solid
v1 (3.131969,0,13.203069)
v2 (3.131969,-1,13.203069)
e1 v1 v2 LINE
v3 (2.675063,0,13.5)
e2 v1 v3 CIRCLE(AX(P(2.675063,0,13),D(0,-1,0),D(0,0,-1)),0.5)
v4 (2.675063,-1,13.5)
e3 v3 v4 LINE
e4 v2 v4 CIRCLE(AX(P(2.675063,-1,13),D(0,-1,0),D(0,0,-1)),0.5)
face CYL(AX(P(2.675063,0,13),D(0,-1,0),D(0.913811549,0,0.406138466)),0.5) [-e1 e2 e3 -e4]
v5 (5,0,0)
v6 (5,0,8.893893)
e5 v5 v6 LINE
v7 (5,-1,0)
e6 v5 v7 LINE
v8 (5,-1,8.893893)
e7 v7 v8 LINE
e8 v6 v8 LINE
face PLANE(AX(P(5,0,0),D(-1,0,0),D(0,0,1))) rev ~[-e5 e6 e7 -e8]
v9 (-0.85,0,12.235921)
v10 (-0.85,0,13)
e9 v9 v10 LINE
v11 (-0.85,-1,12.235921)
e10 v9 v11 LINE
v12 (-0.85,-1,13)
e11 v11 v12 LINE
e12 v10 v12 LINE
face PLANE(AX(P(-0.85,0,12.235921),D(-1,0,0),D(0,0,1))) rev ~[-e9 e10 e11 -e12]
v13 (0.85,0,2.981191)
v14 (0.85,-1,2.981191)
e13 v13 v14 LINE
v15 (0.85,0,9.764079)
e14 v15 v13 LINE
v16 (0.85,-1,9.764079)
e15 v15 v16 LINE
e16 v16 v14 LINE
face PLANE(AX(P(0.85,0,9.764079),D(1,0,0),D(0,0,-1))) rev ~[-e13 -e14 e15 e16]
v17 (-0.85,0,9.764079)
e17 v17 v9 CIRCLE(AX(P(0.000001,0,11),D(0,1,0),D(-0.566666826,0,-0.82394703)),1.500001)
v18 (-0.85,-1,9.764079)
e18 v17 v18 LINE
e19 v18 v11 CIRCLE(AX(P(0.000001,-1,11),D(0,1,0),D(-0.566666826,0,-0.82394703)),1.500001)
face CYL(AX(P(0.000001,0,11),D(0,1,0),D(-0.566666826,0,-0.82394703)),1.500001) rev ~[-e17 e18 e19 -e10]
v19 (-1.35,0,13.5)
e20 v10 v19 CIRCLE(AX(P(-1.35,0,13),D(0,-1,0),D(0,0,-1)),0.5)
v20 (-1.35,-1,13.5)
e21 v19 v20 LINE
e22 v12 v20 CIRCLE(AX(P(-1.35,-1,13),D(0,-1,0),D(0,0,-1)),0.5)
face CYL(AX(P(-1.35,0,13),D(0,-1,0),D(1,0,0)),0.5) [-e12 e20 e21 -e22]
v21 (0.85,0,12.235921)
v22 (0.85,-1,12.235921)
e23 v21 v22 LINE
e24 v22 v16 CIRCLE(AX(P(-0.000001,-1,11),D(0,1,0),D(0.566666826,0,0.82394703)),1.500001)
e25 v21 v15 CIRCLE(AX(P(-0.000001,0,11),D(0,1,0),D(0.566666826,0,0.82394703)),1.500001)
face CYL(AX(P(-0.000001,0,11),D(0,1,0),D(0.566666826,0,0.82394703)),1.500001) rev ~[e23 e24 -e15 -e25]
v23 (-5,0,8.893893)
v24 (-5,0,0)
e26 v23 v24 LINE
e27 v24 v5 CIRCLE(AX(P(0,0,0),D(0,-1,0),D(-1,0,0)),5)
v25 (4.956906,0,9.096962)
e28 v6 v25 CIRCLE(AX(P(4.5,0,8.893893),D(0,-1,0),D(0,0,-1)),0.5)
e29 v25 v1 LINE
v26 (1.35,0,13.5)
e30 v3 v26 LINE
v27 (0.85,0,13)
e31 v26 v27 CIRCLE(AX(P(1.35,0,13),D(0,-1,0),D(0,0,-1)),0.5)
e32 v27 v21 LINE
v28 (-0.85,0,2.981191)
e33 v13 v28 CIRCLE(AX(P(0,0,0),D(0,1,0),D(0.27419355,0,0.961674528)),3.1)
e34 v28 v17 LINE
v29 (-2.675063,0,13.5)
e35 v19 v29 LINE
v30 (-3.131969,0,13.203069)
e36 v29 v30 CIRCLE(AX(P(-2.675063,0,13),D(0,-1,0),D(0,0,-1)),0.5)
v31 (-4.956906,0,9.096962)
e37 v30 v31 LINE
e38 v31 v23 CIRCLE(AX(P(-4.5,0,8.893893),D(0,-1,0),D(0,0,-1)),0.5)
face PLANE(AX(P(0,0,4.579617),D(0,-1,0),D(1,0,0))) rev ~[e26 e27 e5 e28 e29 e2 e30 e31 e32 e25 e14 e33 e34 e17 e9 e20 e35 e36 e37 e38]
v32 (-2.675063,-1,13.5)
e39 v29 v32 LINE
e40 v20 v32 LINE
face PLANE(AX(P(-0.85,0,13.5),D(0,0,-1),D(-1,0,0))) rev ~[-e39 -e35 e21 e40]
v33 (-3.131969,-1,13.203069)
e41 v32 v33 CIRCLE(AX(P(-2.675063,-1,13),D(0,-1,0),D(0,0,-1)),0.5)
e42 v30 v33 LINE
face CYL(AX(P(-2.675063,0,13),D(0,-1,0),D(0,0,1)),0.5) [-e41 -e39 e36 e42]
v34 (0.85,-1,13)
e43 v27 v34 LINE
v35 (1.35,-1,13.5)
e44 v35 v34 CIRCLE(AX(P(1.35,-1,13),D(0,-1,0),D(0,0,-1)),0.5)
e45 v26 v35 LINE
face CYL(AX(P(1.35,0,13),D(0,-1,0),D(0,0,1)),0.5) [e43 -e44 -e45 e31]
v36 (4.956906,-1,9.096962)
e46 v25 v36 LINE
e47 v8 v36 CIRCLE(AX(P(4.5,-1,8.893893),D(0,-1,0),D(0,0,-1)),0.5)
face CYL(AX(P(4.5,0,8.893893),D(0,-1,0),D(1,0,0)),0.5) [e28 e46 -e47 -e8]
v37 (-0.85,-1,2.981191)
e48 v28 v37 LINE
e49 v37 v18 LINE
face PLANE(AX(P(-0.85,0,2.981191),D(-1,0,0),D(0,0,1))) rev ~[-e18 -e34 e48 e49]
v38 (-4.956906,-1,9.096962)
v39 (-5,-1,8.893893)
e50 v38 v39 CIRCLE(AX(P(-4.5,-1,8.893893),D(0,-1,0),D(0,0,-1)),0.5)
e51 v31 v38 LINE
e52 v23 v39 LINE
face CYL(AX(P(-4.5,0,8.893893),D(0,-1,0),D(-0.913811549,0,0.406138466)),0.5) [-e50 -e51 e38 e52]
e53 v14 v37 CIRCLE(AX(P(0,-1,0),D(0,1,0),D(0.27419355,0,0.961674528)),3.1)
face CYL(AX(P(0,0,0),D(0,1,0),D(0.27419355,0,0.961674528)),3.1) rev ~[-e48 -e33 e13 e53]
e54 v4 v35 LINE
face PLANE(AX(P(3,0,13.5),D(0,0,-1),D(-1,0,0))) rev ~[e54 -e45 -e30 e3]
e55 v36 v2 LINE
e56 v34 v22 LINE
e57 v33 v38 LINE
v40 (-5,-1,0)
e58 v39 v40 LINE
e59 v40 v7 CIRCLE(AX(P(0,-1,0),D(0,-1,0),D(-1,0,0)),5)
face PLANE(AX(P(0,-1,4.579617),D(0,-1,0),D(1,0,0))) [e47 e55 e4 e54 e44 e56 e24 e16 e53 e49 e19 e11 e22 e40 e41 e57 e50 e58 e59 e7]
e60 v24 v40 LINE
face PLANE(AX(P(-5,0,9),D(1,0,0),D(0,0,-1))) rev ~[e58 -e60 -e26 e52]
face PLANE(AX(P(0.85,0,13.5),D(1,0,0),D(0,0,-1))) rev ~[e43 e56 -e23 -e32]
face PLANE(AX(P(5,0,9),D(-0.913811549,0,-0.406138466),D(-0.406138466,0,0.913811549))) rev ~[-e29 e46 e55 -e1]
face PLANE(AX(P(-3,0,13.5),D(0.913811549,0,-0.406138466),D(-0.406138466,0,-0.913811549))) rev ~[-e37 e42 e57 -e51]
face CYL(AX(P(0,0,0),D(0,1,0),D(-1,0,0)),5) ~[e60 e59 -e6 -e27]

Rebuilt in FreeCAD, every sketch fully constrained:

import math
import FreeCAD as App
import Part
import Sketcher

V = App.Vector


def edges_at(feature, points):
    """Names of the edges that pass closest to the given points."""
    edges = feature.Shape.Edges
    near = lambda p: min(range(len(edges)), key=lambda i: edges[i].distToShape(Part.Vertex(*p))[0])
    return sorted({f"Edge{near(p) + 1}" for p in points})

doc = App.newDocument("Part")
body = doc.addObject("PartDesign::Body", "Body")

sketch1 = doc.addObject("Sketcher::SketchObject", "Sketch")
body.addObject(sketch1)
sketch1.AttachmentSupport = (doc.XZ_Plane, [""])
sketch1.MapMode = "FlatFace"
sketch1.addGeometry([
    Part.ArcOfCircle(Part.Circle(V(0, 0, 0), V(0, 0, 1), 3.1), math.radians(106), math.radians(434)),
    Part.LineSegment(V(-0.8, 3, 0), V(-0.8, 9.8, 0)),
    Part.ArcOfCircle(Part.Circle(V(0, 11, 0), V(0, 0, 1), 1.5), math.radians(125), math.radians(235)),
    Part.LineSegment(V(-0.8, 12.2, 0), V(-0.8, 13.5, 0)),
    Part.LineSegment(V(-0.8, 13.5, 0), V(-3, 13.5, 0)),
    Part.LineSegment(V(-3, 13.5, 0), V(-5, 9, 0)),
    Part.LineSegment(V(-5, 9, 0), V(-5, 0, 0)),
    Part.ArcOfCircle(Part.Circle(V(0, 0, 0), V(0, 0, 1), 5), math.radians(180), math.radians(360)),
    Part.LineSegment(V(5, 0, 0), V(5, 9, 0)),
    Part.LineSegment(V(5, 9, 0), V(3, 13.5, 0)),
    Part.LineSegment(V(3, 13.5, 0), V(0.8, 13.5, 0)),
    Part.LineSegment(V(0.8, 13.5, 0), V(0.8, 12.2, 0)),
    Part.ArcOfCircle(Part.Circle(V(0, 11, 0), V(0, 0, 1), 1.5), math.radians(-55), math.radians(55)),
    Part.LineSegment(V(0.8, 9.8, 0), V(0.8, 3, 0)),
], False)
sketch1.addConstraint([
    Sketcher.Constraint("Coincident", 0, 1, 1, 1),
    Sketcher.Constraint("Coincident", 1, 2, 2, 2),
    Sketcher.Constraint("Coincident", 2, 1, 3, 1),
    Sketcher.Constraint("Coincident", 3, 2, 4, 1),
    Sketcher.Constraint("Coincident", 4, 2, 5, 1),
    Sketcher.Constraint("Coincident", 5, 2, 6, 1),
    Sketcher.Constraint("Tangent", 6, 2, 7, 1),
    Sketcher.Constraint("Tangent", 7, 2, 8, 1),
    Sketcher.Constraint("Coincident", 8, 2, 9, 1),
    Sketcher.Constraint("Coincident", 9, 2, 10, 1),
    Sketcher.Constraint("Coincident", 10, 2, 11, 1),
    Sketcher.Constraint("Coincident", 11, 2, 12, 2),
    Sketcher.Constraint("Coincident", 12, 1, 13, 1),
    Sketcher.Constraint("Coincident", 13, 2, 0, 2),
    Sketcher.Constraint("Vertical", 1),
    Sketcher.Constraint("Vertical", 3),
    Sketcher.Constraint("Horizontal", 4),
    Sketcher.Constraint("Vertical", 6),
    Sketcher.Constraint("Vertical", 8),
    Sketcher.Constraint("Horizontal", 10),
    Sketcher.Constraint("Vertical", 11),
    Sketcher.Constraint("Vertical", 13),
    Sketcher.Constraint("Coincident", 0, 3, -1, 1),
    Sketcher.Constraint("Coincident", 7, 3, -1, 1),
    Sketcher.Constraint("Coincident", 12, 3, 2, 3),
    Sketcher.Constraint("Equal", 2, 12),
    Sketcher.Constraint("Symmetric", 4, 2, 9, 2, -2),
    Sketcher.Constraint("Symmetric", 2, 1, 11, 2, -2),
    Sketcher.Constraint("Horizontal", 5, 2, 8, 2),
    Sketcher.Constraint("Horizontal", 1, 2, 12, 1),
    Sketcher.Constraint("Vertical", 1, 2, 2, 1),
    Sketcher.Constraint("Radius", 7, 5.0),
    Sketcher.Constraint("Radius", 0, 3.1),
    Sketcher.Constraint("Radius", 2, 1.500001),
    Sketcher.Constraint("DistanceY", 6, 2, 6, 1, 9.0),
    Sketcher.Constraint("DistanceY", -1, 1, 2, 3, 11.0),
    Sketcher.Constraint("DistanceX", 4, 2, -1, 1, 3.0),
    Sketcher.Constraint("DistanceX", 4, 2, 4, 1, 2.15),
    Sketcher.Constraint("DistanceY", -1, 1, 3, 2, 13.5),
])
pad1 = doc.addObject("PartDesign::Pad", "Pad")
body.addObject(pad1)
pad1.Profile = sketch1
pad1.Length = 1
doc.recompute()

fillet = doc.addObject("PartDesign::Fillet", "Fillet")
body.addObject(fillet)
fillet.Base = (pad1, edges_at(pad1, [
    (3, -0.5, 13.5),
    (0.85, -0.5, 13.5),
    (-0.85, -0.5, 13.5),
    (-3, -0.5, 13.5),
    (-5, -0.5, 9),
    (5, -0.5, 9),
]))
fillet.Radius = 0.5

doc.recompute()
